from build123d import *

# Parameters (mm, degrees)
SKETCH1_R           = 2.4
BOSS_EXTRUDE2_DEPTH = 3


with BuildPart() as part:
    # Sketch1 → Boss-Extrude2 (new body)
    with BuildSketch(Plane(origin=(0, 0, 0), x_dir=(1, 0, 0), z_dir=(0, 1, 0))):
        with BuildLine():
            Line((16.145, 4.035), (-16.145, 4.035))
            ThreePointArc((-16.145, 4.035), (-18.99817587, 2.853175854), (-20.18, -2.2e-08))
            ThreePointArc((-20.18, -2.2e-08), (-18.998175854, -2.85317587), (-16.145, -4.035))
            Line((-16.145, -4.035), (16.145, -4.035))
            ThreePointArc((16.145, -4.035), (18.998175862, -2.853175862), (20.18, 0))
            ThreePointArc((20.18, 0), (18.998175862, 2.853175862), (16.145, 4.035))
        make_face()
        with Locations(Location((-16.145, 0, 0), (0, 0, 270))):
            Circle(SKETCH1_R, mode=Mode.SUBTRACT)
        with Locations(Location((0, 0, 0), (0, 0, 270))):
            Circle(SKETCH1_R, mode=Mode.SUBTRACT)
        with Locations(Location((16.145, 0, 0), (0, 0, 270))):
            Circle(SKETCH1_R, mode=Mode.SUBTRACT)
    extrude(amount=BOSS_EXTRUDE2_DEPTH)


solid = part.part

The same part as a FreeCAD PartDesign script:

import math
import FreeCAD as App
import Part
import Sketcher
from FreeCAD import Vector

doc = App.newDocument("Part")
body = doc.addObject("PartDesign::Body", "Body")

# Sketch on XZ plane
sketch1 = body.newObject("Sketcher::SketchObject", "Sketch")
sketch1.AttachmentSupport = (doc.getObject("XZ_Plane"), [""])
sketch1.MapMode = "FlatFace"
sketch1.addGeometry([
    Part.LineSegment(Vector(16.1, -4, 0), Vector(-16.1, -4, 0)),  # 0
    Part.ArcOfCircle(Part.Circle(Vector(-16.1, 0, 0), Vector(0, 0, 1), 4), math.radians(180), math.radians(270)),  # 1
    Part.ArcOfCircle(Part.Circle(Vector(-16.1, 0, 0), Vector(0, 0, 1), 4), math.radians(90), math.radians(180)),  # 2
    Part.LineSegment(Vector(-16.1, 4, 0), Vector(16.1, 4, 0)),  # 3
    Part.ArcOfCircle(Part.Circle(Vector(16.1, 0, 0), Vector(0, 0, 1), 4), math.radians(0), math.radians(90)),  # 4
    Part.ArcOfCircle(Part.Circle(Vector(16.1, 0, 0), Vector(0, 0, 1), 4), math.radians(-90), math.radians(0)),  # 5
    Part.Circle(Vector(-16.1, 0, 0), Vector(0, 0, 1), 2.4),  # 6
    Part.Circle(Vector(0, 0, 0), Vector(0, 0, 1), 2.4),  # 7
    Part.Circle(Vector(16.1, 0, 0), Vector(0, 0, 1), 2.4),  # 8
], False)
sketch1.addConstraint([
    Sketcher.Constraint("Tangent", 0, 2, 1, 2),
    Sketcher.Constraint("Tangent", 1, 1, 2, 2),
    Sketcher.Constraint("Tangent", 2, 1, 3, 1),
    Sketcher.Constraint("Tangent", 3, 2, 4, 2),
    Sketcher.Constraint("Tangent", 4, 1, 5, 2),
    Sketcher.Constraint("Tangent", 5, 1, 0, 1),
    Sketcher.Constraint("Horizontal", 0),
    Sketcher.Constraint("Horizontal", 3),
    Sketcher.Constraint("Coincident", 7, 3, -1, 1),
    Sketcher.Constraint("Coincident", 6, 3, 1, 3),
    Sketcher.Constraint("Coincident", 8, 3, 4, 3),
    Sketcher.Constraint("Equal", 1, 2),
    Sketcher.Constraint("Equal", 2, 4),
    Sketcher.Constraint("Equal", 6, 7),
    Sketcher.Constraint("Equal", 7, 8),
    Sketcher.Constraint("Symmetric", 1, 3, 4, 3, -1, 1),
    Sketcher.Constraint("PointOnObject", 1, 1, -1),
    Sketcher.Constraint("PointOnObject", 4, 1, -1),
    Sketcher.Constraint("Diameter", 6, 4.8),
    Sketcher.Constraint("Radius", 1, 4.035),
    Sketcher.Constraint("DistanceX", 0, 2, 0, 1, 32.29),
])
pad1 = body.newObject("PartDesign::Pad", "Pad")
pad1.Profile = sketch1
pad1.Length = 3
pad1.Reversed = True

doc.recompute()
